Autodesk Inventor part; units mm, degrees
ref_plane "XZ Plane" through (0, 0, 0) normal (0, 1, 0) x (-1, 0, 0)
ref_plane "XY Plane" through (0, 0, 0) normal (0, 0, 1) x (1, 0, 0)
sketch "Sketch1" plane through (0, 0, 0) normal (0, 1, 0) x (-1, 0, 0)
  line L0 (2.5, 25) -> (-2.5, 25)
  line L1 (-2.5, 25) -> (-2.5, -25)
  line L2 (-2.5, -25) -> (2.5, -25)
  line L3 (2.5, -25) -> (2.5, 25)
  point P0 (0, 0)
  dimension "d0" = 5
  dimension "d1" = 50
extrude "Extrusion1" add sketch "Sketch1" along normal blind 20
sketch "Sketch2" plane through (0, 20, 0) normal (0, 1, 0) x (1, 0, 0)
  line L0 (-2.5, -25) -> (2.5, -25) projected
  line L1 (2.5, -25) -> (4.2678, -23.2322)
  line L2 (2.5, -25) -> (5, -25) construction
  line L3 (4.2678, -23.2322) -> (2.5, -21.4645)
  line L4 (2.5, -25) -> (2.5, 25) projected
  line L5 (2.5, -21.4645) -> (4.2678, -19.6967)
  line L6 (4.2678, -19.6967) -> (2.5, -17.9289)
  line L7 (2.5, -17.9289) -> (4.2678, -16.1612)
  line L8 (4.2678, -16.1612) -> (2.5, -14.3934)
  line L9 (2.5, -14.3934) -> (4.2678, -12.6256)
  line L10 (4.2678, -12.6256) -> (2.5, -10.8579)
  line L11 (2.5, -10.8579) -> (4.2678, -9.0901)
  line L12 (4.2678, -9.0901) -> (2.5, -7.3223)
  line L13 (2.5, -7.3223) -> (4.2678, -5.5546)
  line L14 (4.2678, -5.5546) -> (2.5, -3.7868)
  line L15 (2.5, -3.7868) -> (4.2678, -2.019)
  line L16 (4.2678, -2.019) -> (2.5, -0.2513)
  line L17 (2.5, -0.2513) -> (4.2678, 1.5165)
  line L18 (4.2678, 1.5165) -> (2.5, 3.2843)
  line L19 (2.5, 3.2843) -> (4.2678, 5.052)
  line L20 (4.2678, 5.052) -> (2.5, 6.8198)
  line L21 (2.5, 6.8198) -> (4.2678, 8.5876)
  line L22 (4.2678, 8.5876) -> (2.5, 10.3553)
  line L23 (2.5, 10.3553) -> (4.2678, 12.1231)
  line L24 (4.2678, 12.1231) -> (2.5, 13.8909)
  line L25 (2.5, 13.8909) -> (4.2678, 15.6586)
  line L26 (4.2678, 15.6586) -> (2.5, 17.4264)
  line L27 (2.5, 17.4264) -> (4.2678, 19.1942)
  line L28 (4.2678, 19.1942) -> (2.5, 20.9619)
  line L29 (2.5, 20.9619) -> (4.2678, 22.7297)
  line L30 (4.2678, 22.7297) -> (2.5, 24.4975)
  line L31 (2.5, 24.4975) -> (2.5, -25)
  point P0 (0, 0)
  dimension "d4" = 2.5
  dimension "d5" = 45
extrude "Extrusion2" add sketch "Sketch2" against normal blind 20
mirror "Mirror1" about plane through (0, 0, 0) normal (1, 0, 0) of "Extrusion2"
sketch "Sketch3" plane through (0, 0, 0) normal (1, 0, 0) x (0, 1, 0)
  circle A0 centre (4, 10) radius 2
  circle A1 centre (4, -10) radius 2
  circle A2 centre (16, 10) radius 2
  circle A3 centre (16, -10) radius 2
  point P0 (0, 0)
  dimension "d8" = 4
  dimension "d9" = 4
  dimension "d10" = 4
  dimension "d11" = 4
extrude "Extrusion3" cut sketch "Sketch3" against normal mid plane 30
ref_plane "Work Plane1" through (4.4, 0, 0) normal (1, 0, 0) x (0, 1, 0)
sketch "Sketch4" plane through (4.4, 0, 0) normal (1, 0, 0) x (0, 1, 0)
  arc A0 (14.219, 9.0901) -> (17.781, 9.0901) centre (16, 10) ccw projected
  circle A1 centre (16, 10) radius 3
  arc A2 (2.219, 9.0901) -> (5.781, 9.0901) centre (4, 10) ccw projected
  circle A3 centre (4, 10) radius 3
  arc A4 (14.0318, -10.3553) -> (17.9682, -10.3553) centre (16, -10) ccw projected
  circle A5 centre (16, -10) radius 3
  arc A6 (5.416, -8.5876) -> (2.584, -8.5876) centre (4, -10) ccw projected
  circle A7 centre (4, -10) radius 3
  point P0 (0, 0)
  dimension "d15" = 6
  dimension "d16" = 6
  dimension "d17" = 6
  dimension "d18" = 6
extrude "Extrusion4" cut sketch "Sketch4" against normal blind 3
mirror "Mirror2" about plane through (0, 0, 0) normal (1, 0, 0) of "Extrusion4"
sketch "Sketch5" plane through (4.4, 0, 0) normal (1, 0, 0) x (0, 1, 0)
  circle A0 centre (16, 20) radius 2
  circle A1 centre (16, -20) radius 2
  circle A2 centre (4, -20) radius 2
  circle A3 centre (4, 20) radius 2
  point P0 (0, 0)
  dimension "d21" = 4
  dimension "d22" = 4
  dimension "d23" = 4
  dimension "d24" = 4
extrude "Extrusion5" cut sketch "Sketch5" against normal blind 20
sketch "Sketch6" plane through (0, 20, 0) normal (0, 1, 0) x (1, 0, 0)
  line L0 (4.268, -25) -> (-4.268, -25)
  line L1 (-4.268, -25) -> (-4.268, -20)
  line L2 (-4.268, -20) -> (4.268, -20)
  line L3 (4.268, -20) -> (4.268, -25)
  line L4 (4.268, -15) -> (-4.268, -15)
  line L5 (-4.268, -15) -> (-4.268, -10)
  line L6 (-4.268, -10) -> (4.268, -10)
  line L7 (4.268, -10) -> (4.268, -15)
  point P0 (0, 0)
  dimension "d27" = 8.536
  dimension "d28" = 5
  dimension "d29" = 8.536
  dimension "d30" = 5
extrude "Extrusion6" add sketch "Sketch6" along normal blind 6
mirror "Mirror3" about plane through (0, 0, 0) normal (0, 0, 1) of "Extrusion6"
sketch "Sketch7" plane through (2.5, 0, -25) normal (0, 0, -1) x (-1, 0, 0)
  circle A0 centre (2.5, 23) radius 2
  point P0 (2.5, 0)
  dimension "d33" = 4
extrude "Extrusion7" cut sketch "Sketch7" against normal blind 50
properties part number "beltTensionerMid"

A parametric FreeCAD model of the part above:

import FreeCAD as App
import Part
import Sketcher

V = App.Vector


def add_polygon(sketch, points):
    """Adds a closed chain of lines whose ends are joined by coincident constraints."""
    first, n = sketch.GeometryCount, len(points)
    for a, b in zip(points, points[1:] + points[:1]):
        sketch.addGeometry(Part.LineSegment(App.Vector(*a, 0), App.Vector(*b, 0)), False)
    for i in range(n):
        sketch.addConstraint(Sketcher.Constraint("Coincident", first + i, 2, first + (i + 1) % n, 1))

doc = App.newDocument("Part")
body = doc.addObject("PartDesign::Body", "Body")

sketch1 = doc.addObject("Sketcher::SketchObject", "Sketch")
body.addObject(sketch1)
sketch1.AttachmentSupport = (doc.XZ_Plane, [""])
sketch1.MapMode = "FlatFace"
add_polygon(sketch1, [(-2, -25), (-2, 25), (2, 25), (2, -25)])
sketch1.addConstraint([
    Sketcher.Constraint("Vertical", 0),
    Sketcher.Constraint("Horizontal", 1),
    Sketcher.Constraint("Vertical", 2),
    Sketcher.Constraint("Horizontal", 3),
    Sketcher.Constraint("Symmetric", 0, 2, 2, 2, -1, 1),
    Sketcher.Constraint("DistanceX", 1, 1, 1, 2, 5.0),
    Sketcher.Constraint("DistanceY", 0, 1, 0, 2, 50.0),
])
pad1 = doc.addObject("PartDesign::Pad", "Pad")
body.addObject(pad1)
pad1.Profile = sketch1
pad1.Length = 20
pad1.Reversed = True

sketch2 = doc.addObject("Sketcher::SketchObject", "Sketch001")
body.addObject(sketch2)
sketch2.AttachmentSupport = (doc.XZ_Plane, [""])
sketch2.MapMode = "FlatFace"
sketch2.AttachmentOffset = App.Placement(V(0, 0, -20), App.Rotation())
add_polygon(sketch2, [(2.5, 21.5), (2.5, 25), (4.3, 23.2)])
add_polygon(sketch2, [(2.5, -24.5), (2.5, -21), (4.3, -22.7)])
add_polygon(sketch2, [(2.5, -21), (2.5, -17.4), (4.3, -19.2)])
add_polygon(sketch2, [(2.5, -17.4), (2.5, -13.9), (4.3, -15.7)])
add_polygon(sketch2, [(2.5, -13.9), (2.5, -10.4), (4.3, -12.1)])
add_polygon(sketch2, [(2.5, -10.4), (2.5, -6.8), (4.3, -8.6)])
add_polygon(sketch2, [(2.5, -6.8), (2.5, -3.3), (4.3, -5.1)])
add_polygon(sketch2, [(2.5, -3.3), (2.5, 0.3), (4.3, -1.5)])
add_polygon(sketch2, [(2.5, 0.3), (2.5, 3.8), (4.3, 2)])
add_polygon(sketch2, [(2.5, 3.8), (2.5, 7.3), (4.3, 5.6)])
add_polygon(sketch2, [(2.5, 7.3), (2.5, 10.9), (4.3, 9.1)])
add_polygon(sketch2, [(2.5, 10.9), (2.5, 14.4), (4.3, 12.6)])
add_polygon(sketch2, [(2.5, 14.4), (2.5, 17.9), (4.3, 16.2)])
add_polygon(sketch2, [(2.5, 17.9), (2.5, 21.5), (4.3, 19.7)])
sketch2.addConstraint([
    Sketcher.Constraint("Vertical", 0),
    Sketcher.Constraint("Vertical", 3),
    Sketcher.Constraint("Vertical", 6),
    Sketcher.Constraint("Vertical", 9),
    Sketcher.Constraint("Vertical", 12),
    Sketcher.Constraint("Vertical", 15),
    Sketcher.Constraint("Vertical", 18),
    Sketcher.Constraint("Vertical", 21),
    Sketcher.Constraint("Vertical", 24),
    Sketcher.Constraint("Vertical", 27),
    Sketcher.Constraint("Vertical", 30),
    Sketcher.Constraint("Vertical", 33),
    Sketcher.Constraint("Vertical", 36),
    Sketcher.Constraint("Vertical", 39),
    Sketcher.Constraint("Coincident", 8, 2, 3, 2),
    Sketcher.Constraint("Coincident", 11, 2, 6, 2),
    Sketcher.Constraint("Coincident", 14, 2, 9, 2),
    Sketcher.Constraint("Coincident", 17, 2, 12, 2),
    Sketcher.Constraint("Coincident", 20, 2, 15, 2),
    Sketcher.Constraint("Coincident", 23, 2, 18, 2),
    Sketcher.Constraint("Coincident", 26, 2, 21, 2),
    Sketcher.Constraint("Coincident", 29, 2, 24, 2),
    Sketcher.Constraint("Coincident", 32, 2, 27, 2),
    Sketcher.Constraint("Coincident", 35, 2, 30, 2),
    Sketcher.Constraint("Coincident", 38, 2, 33, 2),
    Sketcher.Constraint("Coincident", 39, 2, 2, 2),
    Sketcher.Constraint("Coincident", 41, 2, 36, 2),
    Sketcher.Constraint("Perpendicular", 1, 2),
    Sketcher.Constraint("Perpendicular", 2, 4),
    Sketcher.Constraint("Perpendicular", 4, 5),
    Sketcher.Constraint("Perpendicular", 5, 7),
    Sketcher.Constraint("Perpendicular", 7, 8),
    Sketcher.Constraint("Perpendicular", 8, 10),
    Sketcher.Constraint("Perpendicular", 10, 11),
    Sketcher.Constraint("Perpendicular", 11, 13),
    Sketcher.Constraint("Perpendicular", 13, 14),
    Sketcher.Constraint("Perpendicular", 14, 16),
    Sketcher.Constraint("Perpendicular", 16, 17),
    Sketcher.Constraint("Perpendicular", 17, 19),
    Sketcher.Constraint("Perpendicular", 19, 20),
    Sketcher.Constraint("Perpendicular", 20, 22),
    Sketcher.Constraint("Perpendicular", 22, 23),
    Sketcher.Constraint("Perpendicular", 23, 25),
    Sketcher.Constraint("Perpendicular", 25, 26),
    Sketcher.Constraint("Perpendicular", 26, 28),
    Sketcher.Constraint("Perpendicular", 28, 29),
    Sketcher.Constraint("Perpendicular", 29, 31),
    Sketcher.Constraint("Perpendicular", 31, 32),
    Sketcher.Constraint("Perpendicular", 32, 34),
    Sketcher.Constraint("Perpendicular", 34, 35),
    Sketcher.Constraint("Perpendicular", 35, 37),
    Sketcher.Constraint("Perpendicular", 37, 38),
    Sketcher.Constraint("Perpendicular", 38, 40),
    Sketcher.Constraint("Perpendicular", 40, 41),
    Sketcher.Constraint("Vertical", 1, 2, 4, 2),
    Sketcher.Constraint("Vertical", 4, 2, 7, 2),
    Sketcher.Constraint("Vertical", 7, 2, 10, 2),
    Sketcher.Constraint("Vertical", 10, 2, 13, 2),
    Sketcher.Constraint("Vertical", 13, 2, 16, 2),
    Sketcher.Constraint("Vertical", 16, 2, 19, 2),
    Sketcher.Constraint("Vertical", 19, 2, 22, 2),
    Sketcher.Constraint("Vertical", 22, 2, 25, 2),
    Sketcher.Constraint("Vertical", 25, 2, 28, 2),
    Sketcher.Constraint("Vertical", 28, 2, 31, 2),
    Sketcher.Constraint("Vertical", 31, 2, 34, 2),
    Sketcher.Constraint("Vertical", 34, 2, 37, 2),
    Sketcher.Constraint("Vertical", 37, 2, 40, 2),
    Sketcher.Constraint("Equal", 1, 2),
    Sketcher.Constraint("Distance", 1, 2.5),
    Sketcher.Constraint("DistanceX", -1, 1, 0, 2, 2.5),
    Sketcher.Constraint("DistanceY", -1, 1, 0, 2, 25.0),
])
pad2 = doc.addObject("PartDesign::Pad", "Pad001")
body.addObject(pad2)
pad2.Profile = sketch2
pad2.Length = 20
doc.recompute()

mirrored = doc.addObject("PartDesign::Mirrored", "Mirrored")
body.addObject(mirrored)
mirrored.Originals = [pad2]
mirrored.MirrorPlane = (doc.YZ_Plane, [""])
body.Tip = mirrored

sketch3 = doc.addObject("Sketcher::SketchObject", "Sketch002")
body.addObject(sketch3)
sketch3.AttachmentSupport = (doc.YZ_Plane, [""])
sketch3.MapMode = "FlatFace"
sketch3.addGeometry([
    Part.Circle(V(4, 10, 0), V(0, 0, 1), 2),
    Part.Circle(V(4, -10, 0), V(0, 0, 1), 2),
    Part.Circle(V(16, 10, 0), V(0, 0, 1), 2),
    Part.Circle(V(16, -10, 0), V(0, 0, 1), 2),
], False)
sketch3.addConstraint([
    Sketcher.Constraint("Equal", 0, 1),
    Sketcher.Constraint("Equal", 1, 2),
    Sketcher.Constraint("Equal", 2, 3),
    Sketcher.Constraint("Symmetric", 0, 3, 1, 3, -1),
    Sketcher.Constraint("Symmetric", 2, 3, 3, 3, -1),
    Sketcher.Constraint("Horizontal", 0, 3, 2, 3),
    Sketcher.Constraint("Diameter", 0, 4.0),
    Sketcher.Constraint("DistanceX", -1, 1, 0, 3, 4.0),
    Sketcher.Constraint("DistanceY", -1, 1, 0, 3, 10.0),
    Sketcher.Constraint("DistanceX", -1, 1, 2, 3, 16.0),
])
pocket1 = doc.addObject("PartDesign::Pocket", "Pocket")
body.addObject(pocket1)
pocket1.Profile = sketch3
pocket1.Length = 30
pocket1.Midplane = True

sketch4 = doc.addObject("Sketcher::SketchObject", "Sketch003")
body.addObject(sketch4)
sketch4.AttachmentSupport = (doc.YZ_Plane, [""])
sketch4.MapMode = "FlatFace"
sketch4.AttachmentOffset = App.Placement(V(0, 0, 4.4), App.Rotation())
sketch4.addGeometry([
    Part.Circle(V(16, 10, 0), V(0, 0, 1), 3),
    Part.Circle(V(4, 10, 0), V(0, 0, 1), 3),
    Part.Circle(V(16, -10, 0), V(0, 0, 1), 3),
    Part.Circle(V(4, -10, 0), V(0, 0, 1), 3),
], False)
sketch4.addConstraint([
    Sketcher.Constraint("Equal", 0, 1),
    Sketcher.Constraint("Equal", 1, 2),
    Sketcher.Constraint("Equal", 2, 3),
    Sketcher.Constraint("Symmetric", 0, 3, 2, 3, -1),
    Sketcher.Constraint("Symmetric", 1, 3, 3, 3, -1),
    Sketcher.Constraint("Horizontal", 0, 3, 1, 3),
    Sketcher.Constraint("Diameter", 0, 6.0),
    Sketcher.Constraint("DistanceX", -1, 1, 0, 3, 16.0),
    Sketcher.Constraint("DistanceY", -1, 1, 0, 3, 10.0),
    Sketcher.Constraint("DistanceX", -1, 1, 1, 3, 4.0),
])
pocket2 = doc.addObject("PartDesign::Pocket", "Pocket001")
body.addObject(pocket2)
pocket2.Profile = sketch4
pocket2.Length = 3
doc.recompute()

mirrored2 = doc.addObject("PartDesign::Mirrored", "Mirrored001")
body.addObject(mirrored2)
mirrored2.Originals = [pocket2]
mirrored2.MirrorPlane = (doc.YZ_Plane, [""])
body.Tip = mirrored2

sketch5 = doc.addObject("Sketcher::SketchObject", "Sketch004")
body.addObject(sketch5)
sketch5.AttachmentSupport = (doc.YZ_Plane, [""])
sketch5.MapMode = "FlatFace"
sketch5.AttachmentOffset = App.Placement(V(0, 0, 4.4), App.Rotation())
sketch5.addGeometry([
    Part.Circle(V(16, 20, 0), V(0, 0, 1), 2),
    Part.Circle(V(16, -20, 0), V(0, 0, 1), 2),
    Part.Circle(V(4, -20, 0), V(0, 0, 1), 2),
    Part.Circle(V(4, 20, 0), V(0, 0, 1), 2),
], False)
sketch5.addConstraint([
    Sketcher.Constraint("Equal", 0, 1),
    Sketcher.Constraint("Equal", 1, 2),
    Sketcher.Constraint("Equal", 2, 3),
    Sketcher.Constraint("Symmetric", 0, 3, 1, 3, -1),
    Sketcher.Constraint("Symmetric", 2, 3, 3, 3, -1),
    Sketcher.Constraint("Horizontal", 1, 3, 2, 3),
    Sketcher.Constraint("Diameter", 0, 4.0),
    Sketcher.Constraint("DistanceX", -1, 1, 2, 3, 4.0),
    Sketcher.Constraint("DistanceX", -1, 1, 0, 3, 16.0),
    Sketcher.Constraint("DistanceY", -1, 1, 0, 3, 20.0),
])
pocket3 = doc.addObject("PartDesign::Pocket", "Pocket002")
body.addObject(pocket3)
pocket3.Profile = sketch5
pocket3.Length = 20

sketch6 = doc.addObject("Sketcher::SketchObject", "Sketch005")
body.addObject(sketch6)
sketch6.AttachmentSupport = (doc.XZ_Plane, [""])
sketch6.MapMode = "FlatFace"
sketch6.AttachmentOffset = App.Placement(V(0, 0, -20), App.Rotation())
add_polygon(sketch6, [(-4, 25), (4, 25), (4, 20), (-4, 20)])
add_polygon(sketch6, [(-4, 15), (4, 15), (4, 10), (-4, 10)])
sketch6.addConstraint([
    Sketcher.Constraint("Horizontal", 0),
    Sketcher.Constraint("Vertical", 1),
    Sketcher.Constraint("Horizontal", 2),
    Sketcher.Constraint("Vertical", 3),
    Sketcher.Constraint("Horizontal", 4),
    Sketcher.Constraint("Vertical", 5),
    Sketcher.Constraint("Horizontal", 6),
    Sketcher.Constraint("Vertical", 7),
    Sketcher.Constraint("Vertical", 1, 2, 4, 2),
    Sketcher.Constraint("Vertical", 3, 2, 6, 2),
    Sketcher.Constraint("Equal", 3, 5),
    Sketcher.Constraint("DistanceY", 1, 2, 1, 1, 5.0),
    Sketcher.Constraint("DistanceY", 4, 2, 1, 2, 5.0),
    Sketcher.Constraint("DistanceX", 0, 1, 0, 2, 8.536),
    Sketcher.Constraint("DistanceY", -1, 1, 0, 2, 25.0),
    Sketcher.Constraint("DistanceX", -1, 1, 0, 2, 4.268),
])
pad3 = doc.addObject("PartDesign::Pad", "Pad002")
body.addObject(pad3)
pad3.Profile = sketch6
pad3.Length = 6
pad3.Reversed = True
doc.recompute()

mirrored3 = doc.addObject("PartDesign::Mirrored", "Mirrored002")
body.addObject(mirrored3)
mirrored3.Originals = [pad3]
mirrored3.MirrorPlane = (doc.XY_Plane, [""])
body.Tip = mirrored3

sketch7 = doc.addObject("Sketcher::SketchObject", "Sketch006")
body.addObject(sketch7)
sketch7.AttachmentSupport = (doc.XY_Plane, [""])
sketch7.MapMode = "FlatFace"
sketch7.AttachmentOffset = App.Placement(V(0, 0, -25), App.Rotation())
sketch7.addGeometry(Part.Circle(V(0, 23, 0), V(0, 0, 1), 2), False)
sketch7.addConstraint([
    Sketcher.Constraint("PointOnObject", 0, 3, -2),
    Sketcher.Constraint("Diameter", 0, 4.0),
    Sketcher.Constraint("DistanceY", -1, 1, 0, 3, 23.0),
])
pocket4 = doc.addObject("PartDesign::Pocket", "Pocket003")
body.addObject(pocket4)
pocket4.Profile = sketch7
pocket4.Length = 50
pocket4.Reversed = True

doc.recompute()
